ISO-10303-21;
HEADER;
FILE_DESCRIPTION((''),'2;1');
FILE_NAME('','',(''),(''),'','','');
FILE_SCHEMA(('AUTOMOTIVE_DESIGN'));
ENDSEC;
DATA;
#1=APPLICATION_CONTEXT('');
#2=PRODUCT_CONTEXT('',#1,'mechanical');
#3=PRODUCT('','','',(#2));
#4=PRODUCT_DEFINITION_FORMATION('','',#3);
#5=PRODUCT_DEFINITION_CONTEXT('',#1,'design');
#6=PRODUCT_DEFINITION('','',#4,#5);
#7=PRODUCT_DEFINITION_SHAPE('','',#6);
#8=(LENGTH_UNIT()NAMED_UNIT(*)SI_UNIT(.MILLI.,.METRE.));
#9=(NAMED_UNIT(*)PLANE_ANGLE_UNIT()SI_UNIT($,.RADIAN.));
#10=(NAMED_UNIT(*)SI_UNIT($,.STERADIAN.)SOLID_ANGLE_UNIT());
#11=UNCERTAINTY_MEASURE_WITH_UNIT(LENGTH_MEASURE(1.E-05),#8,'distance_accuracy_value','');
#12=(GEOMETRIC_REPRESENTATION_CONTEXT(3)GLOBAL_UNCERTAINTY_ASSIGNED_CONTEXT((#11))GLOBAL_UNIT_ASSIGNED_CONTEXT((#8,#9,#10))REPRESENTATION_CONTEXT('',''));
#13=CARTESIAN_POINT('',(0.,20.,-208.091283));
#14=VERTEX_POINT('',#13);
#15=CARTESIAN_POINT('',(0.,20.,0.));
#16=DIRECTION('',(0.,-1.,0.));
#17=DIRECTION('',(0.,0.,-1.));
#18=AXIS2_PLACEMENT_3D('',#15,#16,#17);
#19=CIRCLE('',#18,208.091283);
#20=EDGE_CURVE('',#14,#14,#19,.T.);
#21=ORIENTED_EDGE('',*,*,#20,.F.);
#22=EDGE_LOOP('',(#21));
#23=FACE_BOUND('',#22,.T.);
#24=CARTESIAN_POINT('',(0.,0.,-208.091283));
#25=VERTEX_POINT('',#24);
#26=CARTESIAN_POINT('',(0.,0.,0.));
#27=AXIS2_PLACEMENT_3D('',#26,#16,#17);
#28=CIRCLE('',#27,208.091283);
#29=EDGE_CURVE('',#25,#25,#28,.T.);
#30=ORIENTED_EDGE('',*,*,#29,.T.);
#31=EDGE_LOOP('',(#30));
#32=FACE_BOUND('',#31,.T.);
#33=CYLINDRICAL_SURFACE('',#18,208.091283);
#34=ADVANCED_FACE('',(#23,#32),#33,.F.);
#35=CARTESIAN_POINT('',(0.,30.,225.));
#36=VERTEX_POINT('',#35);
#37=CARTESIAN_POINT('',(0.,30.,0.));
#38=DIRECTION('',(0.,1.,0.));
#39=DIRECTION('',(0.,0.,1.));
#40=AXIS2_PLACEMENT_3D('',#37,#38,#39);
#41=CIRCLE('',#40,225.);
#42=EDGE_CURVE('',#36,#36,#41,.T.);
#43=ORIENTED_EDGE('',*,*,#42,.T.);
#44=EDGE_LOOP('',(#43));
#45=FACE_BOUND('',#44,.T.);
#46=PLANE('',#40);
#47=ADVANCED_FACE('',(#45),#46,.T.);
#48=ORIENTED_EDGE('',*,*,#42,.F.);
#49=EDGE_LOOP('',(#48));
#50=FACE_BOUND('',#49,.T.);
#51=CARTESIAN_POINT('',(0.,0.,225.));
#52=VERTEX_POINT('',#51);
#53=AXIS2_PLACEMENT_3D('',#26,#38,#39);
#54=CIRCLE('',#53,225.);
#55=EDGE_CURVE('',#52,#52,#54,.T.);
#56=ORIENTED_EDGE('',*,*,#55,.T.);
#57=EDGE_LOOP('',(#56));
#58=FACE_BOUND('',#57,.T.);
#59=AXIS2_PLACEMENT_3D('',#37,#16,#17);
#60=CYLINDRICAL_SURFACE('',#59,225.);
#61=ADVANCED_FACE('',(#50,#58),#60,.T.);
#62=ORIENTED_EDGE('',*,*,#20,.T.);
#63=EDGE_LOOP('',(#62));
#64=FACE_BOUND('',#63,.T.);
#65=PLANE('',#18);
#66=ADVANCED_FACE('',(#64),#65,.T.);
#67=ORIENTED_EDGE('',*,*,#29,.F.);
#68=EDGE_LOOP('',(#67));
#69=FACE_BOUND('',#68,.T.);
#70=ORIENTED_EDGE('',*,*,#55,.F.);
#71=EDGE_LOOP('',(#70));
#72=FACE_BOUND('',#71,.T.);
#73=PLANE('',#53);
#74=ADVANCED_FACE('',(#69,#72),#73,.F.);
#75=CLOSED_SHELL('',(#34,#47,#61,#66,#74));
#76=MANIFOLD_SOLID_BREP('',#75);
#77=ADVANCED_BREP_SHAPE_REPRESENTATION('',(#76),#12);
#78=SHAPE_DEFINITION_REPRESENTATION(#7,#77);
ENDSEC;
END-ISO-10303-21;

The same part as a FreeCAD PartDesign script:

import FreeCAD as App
import Part
import Sketcher

doc = App.newDocument("Part")
body = doc.addObject("PartDesign::Body", "Body")

sketch1 = doc.addObject("Sketcher::SketchObject", "Sketch")
body.addObject(sketch1)
sketch1.AttachmentSupport = (doc.XZ_Plane, [""])
sketch1.MapMode = "FlatFace"
sketch1.addGeometry(Part.Circle(App.Vector(0, 0, 0), App.Vector(0, 0, 1), 225), False)
sketch1.addConstraint([
    Sketcher.Constraint("Coincident", 0, 3, -1, 1),
    Sketcher.Constraint("Diameter", 0, 450.0),
])
pad1 = doc.addObject("PartDesign::Pad", "Pad")
body.addObject(pad1)
pad1.Profile = sketch1
pad1.Length = 30
pad1.Reversed = True

sketch2 = doc.addObject("Sketcher::SketchObject", "Sketch001")
body.addObject(sketch2)
sketch2.AttachmentSupport = (doc.XZ_Plane, [""])
sketch2.MapMode = "FlatFace"
sketch2.addGeometry(Part.Circle(App.Vector(0, 0, 0), App.Vector(0, 0, 1), 208), False)
sketch2.addConstraint([
    Sketcher.Constraint("Coincident", 0, 3, -1, 1),
    Sketcher.Constraint("Diameter", 0, 416.182566),
])
pocket1 = doc.addObject("PartDesign::Pocket", "Pocket")
body.addObject(pocket1)
pocket1.Profile = sketch2
pocket1.Length = 20

doc.recompute()
